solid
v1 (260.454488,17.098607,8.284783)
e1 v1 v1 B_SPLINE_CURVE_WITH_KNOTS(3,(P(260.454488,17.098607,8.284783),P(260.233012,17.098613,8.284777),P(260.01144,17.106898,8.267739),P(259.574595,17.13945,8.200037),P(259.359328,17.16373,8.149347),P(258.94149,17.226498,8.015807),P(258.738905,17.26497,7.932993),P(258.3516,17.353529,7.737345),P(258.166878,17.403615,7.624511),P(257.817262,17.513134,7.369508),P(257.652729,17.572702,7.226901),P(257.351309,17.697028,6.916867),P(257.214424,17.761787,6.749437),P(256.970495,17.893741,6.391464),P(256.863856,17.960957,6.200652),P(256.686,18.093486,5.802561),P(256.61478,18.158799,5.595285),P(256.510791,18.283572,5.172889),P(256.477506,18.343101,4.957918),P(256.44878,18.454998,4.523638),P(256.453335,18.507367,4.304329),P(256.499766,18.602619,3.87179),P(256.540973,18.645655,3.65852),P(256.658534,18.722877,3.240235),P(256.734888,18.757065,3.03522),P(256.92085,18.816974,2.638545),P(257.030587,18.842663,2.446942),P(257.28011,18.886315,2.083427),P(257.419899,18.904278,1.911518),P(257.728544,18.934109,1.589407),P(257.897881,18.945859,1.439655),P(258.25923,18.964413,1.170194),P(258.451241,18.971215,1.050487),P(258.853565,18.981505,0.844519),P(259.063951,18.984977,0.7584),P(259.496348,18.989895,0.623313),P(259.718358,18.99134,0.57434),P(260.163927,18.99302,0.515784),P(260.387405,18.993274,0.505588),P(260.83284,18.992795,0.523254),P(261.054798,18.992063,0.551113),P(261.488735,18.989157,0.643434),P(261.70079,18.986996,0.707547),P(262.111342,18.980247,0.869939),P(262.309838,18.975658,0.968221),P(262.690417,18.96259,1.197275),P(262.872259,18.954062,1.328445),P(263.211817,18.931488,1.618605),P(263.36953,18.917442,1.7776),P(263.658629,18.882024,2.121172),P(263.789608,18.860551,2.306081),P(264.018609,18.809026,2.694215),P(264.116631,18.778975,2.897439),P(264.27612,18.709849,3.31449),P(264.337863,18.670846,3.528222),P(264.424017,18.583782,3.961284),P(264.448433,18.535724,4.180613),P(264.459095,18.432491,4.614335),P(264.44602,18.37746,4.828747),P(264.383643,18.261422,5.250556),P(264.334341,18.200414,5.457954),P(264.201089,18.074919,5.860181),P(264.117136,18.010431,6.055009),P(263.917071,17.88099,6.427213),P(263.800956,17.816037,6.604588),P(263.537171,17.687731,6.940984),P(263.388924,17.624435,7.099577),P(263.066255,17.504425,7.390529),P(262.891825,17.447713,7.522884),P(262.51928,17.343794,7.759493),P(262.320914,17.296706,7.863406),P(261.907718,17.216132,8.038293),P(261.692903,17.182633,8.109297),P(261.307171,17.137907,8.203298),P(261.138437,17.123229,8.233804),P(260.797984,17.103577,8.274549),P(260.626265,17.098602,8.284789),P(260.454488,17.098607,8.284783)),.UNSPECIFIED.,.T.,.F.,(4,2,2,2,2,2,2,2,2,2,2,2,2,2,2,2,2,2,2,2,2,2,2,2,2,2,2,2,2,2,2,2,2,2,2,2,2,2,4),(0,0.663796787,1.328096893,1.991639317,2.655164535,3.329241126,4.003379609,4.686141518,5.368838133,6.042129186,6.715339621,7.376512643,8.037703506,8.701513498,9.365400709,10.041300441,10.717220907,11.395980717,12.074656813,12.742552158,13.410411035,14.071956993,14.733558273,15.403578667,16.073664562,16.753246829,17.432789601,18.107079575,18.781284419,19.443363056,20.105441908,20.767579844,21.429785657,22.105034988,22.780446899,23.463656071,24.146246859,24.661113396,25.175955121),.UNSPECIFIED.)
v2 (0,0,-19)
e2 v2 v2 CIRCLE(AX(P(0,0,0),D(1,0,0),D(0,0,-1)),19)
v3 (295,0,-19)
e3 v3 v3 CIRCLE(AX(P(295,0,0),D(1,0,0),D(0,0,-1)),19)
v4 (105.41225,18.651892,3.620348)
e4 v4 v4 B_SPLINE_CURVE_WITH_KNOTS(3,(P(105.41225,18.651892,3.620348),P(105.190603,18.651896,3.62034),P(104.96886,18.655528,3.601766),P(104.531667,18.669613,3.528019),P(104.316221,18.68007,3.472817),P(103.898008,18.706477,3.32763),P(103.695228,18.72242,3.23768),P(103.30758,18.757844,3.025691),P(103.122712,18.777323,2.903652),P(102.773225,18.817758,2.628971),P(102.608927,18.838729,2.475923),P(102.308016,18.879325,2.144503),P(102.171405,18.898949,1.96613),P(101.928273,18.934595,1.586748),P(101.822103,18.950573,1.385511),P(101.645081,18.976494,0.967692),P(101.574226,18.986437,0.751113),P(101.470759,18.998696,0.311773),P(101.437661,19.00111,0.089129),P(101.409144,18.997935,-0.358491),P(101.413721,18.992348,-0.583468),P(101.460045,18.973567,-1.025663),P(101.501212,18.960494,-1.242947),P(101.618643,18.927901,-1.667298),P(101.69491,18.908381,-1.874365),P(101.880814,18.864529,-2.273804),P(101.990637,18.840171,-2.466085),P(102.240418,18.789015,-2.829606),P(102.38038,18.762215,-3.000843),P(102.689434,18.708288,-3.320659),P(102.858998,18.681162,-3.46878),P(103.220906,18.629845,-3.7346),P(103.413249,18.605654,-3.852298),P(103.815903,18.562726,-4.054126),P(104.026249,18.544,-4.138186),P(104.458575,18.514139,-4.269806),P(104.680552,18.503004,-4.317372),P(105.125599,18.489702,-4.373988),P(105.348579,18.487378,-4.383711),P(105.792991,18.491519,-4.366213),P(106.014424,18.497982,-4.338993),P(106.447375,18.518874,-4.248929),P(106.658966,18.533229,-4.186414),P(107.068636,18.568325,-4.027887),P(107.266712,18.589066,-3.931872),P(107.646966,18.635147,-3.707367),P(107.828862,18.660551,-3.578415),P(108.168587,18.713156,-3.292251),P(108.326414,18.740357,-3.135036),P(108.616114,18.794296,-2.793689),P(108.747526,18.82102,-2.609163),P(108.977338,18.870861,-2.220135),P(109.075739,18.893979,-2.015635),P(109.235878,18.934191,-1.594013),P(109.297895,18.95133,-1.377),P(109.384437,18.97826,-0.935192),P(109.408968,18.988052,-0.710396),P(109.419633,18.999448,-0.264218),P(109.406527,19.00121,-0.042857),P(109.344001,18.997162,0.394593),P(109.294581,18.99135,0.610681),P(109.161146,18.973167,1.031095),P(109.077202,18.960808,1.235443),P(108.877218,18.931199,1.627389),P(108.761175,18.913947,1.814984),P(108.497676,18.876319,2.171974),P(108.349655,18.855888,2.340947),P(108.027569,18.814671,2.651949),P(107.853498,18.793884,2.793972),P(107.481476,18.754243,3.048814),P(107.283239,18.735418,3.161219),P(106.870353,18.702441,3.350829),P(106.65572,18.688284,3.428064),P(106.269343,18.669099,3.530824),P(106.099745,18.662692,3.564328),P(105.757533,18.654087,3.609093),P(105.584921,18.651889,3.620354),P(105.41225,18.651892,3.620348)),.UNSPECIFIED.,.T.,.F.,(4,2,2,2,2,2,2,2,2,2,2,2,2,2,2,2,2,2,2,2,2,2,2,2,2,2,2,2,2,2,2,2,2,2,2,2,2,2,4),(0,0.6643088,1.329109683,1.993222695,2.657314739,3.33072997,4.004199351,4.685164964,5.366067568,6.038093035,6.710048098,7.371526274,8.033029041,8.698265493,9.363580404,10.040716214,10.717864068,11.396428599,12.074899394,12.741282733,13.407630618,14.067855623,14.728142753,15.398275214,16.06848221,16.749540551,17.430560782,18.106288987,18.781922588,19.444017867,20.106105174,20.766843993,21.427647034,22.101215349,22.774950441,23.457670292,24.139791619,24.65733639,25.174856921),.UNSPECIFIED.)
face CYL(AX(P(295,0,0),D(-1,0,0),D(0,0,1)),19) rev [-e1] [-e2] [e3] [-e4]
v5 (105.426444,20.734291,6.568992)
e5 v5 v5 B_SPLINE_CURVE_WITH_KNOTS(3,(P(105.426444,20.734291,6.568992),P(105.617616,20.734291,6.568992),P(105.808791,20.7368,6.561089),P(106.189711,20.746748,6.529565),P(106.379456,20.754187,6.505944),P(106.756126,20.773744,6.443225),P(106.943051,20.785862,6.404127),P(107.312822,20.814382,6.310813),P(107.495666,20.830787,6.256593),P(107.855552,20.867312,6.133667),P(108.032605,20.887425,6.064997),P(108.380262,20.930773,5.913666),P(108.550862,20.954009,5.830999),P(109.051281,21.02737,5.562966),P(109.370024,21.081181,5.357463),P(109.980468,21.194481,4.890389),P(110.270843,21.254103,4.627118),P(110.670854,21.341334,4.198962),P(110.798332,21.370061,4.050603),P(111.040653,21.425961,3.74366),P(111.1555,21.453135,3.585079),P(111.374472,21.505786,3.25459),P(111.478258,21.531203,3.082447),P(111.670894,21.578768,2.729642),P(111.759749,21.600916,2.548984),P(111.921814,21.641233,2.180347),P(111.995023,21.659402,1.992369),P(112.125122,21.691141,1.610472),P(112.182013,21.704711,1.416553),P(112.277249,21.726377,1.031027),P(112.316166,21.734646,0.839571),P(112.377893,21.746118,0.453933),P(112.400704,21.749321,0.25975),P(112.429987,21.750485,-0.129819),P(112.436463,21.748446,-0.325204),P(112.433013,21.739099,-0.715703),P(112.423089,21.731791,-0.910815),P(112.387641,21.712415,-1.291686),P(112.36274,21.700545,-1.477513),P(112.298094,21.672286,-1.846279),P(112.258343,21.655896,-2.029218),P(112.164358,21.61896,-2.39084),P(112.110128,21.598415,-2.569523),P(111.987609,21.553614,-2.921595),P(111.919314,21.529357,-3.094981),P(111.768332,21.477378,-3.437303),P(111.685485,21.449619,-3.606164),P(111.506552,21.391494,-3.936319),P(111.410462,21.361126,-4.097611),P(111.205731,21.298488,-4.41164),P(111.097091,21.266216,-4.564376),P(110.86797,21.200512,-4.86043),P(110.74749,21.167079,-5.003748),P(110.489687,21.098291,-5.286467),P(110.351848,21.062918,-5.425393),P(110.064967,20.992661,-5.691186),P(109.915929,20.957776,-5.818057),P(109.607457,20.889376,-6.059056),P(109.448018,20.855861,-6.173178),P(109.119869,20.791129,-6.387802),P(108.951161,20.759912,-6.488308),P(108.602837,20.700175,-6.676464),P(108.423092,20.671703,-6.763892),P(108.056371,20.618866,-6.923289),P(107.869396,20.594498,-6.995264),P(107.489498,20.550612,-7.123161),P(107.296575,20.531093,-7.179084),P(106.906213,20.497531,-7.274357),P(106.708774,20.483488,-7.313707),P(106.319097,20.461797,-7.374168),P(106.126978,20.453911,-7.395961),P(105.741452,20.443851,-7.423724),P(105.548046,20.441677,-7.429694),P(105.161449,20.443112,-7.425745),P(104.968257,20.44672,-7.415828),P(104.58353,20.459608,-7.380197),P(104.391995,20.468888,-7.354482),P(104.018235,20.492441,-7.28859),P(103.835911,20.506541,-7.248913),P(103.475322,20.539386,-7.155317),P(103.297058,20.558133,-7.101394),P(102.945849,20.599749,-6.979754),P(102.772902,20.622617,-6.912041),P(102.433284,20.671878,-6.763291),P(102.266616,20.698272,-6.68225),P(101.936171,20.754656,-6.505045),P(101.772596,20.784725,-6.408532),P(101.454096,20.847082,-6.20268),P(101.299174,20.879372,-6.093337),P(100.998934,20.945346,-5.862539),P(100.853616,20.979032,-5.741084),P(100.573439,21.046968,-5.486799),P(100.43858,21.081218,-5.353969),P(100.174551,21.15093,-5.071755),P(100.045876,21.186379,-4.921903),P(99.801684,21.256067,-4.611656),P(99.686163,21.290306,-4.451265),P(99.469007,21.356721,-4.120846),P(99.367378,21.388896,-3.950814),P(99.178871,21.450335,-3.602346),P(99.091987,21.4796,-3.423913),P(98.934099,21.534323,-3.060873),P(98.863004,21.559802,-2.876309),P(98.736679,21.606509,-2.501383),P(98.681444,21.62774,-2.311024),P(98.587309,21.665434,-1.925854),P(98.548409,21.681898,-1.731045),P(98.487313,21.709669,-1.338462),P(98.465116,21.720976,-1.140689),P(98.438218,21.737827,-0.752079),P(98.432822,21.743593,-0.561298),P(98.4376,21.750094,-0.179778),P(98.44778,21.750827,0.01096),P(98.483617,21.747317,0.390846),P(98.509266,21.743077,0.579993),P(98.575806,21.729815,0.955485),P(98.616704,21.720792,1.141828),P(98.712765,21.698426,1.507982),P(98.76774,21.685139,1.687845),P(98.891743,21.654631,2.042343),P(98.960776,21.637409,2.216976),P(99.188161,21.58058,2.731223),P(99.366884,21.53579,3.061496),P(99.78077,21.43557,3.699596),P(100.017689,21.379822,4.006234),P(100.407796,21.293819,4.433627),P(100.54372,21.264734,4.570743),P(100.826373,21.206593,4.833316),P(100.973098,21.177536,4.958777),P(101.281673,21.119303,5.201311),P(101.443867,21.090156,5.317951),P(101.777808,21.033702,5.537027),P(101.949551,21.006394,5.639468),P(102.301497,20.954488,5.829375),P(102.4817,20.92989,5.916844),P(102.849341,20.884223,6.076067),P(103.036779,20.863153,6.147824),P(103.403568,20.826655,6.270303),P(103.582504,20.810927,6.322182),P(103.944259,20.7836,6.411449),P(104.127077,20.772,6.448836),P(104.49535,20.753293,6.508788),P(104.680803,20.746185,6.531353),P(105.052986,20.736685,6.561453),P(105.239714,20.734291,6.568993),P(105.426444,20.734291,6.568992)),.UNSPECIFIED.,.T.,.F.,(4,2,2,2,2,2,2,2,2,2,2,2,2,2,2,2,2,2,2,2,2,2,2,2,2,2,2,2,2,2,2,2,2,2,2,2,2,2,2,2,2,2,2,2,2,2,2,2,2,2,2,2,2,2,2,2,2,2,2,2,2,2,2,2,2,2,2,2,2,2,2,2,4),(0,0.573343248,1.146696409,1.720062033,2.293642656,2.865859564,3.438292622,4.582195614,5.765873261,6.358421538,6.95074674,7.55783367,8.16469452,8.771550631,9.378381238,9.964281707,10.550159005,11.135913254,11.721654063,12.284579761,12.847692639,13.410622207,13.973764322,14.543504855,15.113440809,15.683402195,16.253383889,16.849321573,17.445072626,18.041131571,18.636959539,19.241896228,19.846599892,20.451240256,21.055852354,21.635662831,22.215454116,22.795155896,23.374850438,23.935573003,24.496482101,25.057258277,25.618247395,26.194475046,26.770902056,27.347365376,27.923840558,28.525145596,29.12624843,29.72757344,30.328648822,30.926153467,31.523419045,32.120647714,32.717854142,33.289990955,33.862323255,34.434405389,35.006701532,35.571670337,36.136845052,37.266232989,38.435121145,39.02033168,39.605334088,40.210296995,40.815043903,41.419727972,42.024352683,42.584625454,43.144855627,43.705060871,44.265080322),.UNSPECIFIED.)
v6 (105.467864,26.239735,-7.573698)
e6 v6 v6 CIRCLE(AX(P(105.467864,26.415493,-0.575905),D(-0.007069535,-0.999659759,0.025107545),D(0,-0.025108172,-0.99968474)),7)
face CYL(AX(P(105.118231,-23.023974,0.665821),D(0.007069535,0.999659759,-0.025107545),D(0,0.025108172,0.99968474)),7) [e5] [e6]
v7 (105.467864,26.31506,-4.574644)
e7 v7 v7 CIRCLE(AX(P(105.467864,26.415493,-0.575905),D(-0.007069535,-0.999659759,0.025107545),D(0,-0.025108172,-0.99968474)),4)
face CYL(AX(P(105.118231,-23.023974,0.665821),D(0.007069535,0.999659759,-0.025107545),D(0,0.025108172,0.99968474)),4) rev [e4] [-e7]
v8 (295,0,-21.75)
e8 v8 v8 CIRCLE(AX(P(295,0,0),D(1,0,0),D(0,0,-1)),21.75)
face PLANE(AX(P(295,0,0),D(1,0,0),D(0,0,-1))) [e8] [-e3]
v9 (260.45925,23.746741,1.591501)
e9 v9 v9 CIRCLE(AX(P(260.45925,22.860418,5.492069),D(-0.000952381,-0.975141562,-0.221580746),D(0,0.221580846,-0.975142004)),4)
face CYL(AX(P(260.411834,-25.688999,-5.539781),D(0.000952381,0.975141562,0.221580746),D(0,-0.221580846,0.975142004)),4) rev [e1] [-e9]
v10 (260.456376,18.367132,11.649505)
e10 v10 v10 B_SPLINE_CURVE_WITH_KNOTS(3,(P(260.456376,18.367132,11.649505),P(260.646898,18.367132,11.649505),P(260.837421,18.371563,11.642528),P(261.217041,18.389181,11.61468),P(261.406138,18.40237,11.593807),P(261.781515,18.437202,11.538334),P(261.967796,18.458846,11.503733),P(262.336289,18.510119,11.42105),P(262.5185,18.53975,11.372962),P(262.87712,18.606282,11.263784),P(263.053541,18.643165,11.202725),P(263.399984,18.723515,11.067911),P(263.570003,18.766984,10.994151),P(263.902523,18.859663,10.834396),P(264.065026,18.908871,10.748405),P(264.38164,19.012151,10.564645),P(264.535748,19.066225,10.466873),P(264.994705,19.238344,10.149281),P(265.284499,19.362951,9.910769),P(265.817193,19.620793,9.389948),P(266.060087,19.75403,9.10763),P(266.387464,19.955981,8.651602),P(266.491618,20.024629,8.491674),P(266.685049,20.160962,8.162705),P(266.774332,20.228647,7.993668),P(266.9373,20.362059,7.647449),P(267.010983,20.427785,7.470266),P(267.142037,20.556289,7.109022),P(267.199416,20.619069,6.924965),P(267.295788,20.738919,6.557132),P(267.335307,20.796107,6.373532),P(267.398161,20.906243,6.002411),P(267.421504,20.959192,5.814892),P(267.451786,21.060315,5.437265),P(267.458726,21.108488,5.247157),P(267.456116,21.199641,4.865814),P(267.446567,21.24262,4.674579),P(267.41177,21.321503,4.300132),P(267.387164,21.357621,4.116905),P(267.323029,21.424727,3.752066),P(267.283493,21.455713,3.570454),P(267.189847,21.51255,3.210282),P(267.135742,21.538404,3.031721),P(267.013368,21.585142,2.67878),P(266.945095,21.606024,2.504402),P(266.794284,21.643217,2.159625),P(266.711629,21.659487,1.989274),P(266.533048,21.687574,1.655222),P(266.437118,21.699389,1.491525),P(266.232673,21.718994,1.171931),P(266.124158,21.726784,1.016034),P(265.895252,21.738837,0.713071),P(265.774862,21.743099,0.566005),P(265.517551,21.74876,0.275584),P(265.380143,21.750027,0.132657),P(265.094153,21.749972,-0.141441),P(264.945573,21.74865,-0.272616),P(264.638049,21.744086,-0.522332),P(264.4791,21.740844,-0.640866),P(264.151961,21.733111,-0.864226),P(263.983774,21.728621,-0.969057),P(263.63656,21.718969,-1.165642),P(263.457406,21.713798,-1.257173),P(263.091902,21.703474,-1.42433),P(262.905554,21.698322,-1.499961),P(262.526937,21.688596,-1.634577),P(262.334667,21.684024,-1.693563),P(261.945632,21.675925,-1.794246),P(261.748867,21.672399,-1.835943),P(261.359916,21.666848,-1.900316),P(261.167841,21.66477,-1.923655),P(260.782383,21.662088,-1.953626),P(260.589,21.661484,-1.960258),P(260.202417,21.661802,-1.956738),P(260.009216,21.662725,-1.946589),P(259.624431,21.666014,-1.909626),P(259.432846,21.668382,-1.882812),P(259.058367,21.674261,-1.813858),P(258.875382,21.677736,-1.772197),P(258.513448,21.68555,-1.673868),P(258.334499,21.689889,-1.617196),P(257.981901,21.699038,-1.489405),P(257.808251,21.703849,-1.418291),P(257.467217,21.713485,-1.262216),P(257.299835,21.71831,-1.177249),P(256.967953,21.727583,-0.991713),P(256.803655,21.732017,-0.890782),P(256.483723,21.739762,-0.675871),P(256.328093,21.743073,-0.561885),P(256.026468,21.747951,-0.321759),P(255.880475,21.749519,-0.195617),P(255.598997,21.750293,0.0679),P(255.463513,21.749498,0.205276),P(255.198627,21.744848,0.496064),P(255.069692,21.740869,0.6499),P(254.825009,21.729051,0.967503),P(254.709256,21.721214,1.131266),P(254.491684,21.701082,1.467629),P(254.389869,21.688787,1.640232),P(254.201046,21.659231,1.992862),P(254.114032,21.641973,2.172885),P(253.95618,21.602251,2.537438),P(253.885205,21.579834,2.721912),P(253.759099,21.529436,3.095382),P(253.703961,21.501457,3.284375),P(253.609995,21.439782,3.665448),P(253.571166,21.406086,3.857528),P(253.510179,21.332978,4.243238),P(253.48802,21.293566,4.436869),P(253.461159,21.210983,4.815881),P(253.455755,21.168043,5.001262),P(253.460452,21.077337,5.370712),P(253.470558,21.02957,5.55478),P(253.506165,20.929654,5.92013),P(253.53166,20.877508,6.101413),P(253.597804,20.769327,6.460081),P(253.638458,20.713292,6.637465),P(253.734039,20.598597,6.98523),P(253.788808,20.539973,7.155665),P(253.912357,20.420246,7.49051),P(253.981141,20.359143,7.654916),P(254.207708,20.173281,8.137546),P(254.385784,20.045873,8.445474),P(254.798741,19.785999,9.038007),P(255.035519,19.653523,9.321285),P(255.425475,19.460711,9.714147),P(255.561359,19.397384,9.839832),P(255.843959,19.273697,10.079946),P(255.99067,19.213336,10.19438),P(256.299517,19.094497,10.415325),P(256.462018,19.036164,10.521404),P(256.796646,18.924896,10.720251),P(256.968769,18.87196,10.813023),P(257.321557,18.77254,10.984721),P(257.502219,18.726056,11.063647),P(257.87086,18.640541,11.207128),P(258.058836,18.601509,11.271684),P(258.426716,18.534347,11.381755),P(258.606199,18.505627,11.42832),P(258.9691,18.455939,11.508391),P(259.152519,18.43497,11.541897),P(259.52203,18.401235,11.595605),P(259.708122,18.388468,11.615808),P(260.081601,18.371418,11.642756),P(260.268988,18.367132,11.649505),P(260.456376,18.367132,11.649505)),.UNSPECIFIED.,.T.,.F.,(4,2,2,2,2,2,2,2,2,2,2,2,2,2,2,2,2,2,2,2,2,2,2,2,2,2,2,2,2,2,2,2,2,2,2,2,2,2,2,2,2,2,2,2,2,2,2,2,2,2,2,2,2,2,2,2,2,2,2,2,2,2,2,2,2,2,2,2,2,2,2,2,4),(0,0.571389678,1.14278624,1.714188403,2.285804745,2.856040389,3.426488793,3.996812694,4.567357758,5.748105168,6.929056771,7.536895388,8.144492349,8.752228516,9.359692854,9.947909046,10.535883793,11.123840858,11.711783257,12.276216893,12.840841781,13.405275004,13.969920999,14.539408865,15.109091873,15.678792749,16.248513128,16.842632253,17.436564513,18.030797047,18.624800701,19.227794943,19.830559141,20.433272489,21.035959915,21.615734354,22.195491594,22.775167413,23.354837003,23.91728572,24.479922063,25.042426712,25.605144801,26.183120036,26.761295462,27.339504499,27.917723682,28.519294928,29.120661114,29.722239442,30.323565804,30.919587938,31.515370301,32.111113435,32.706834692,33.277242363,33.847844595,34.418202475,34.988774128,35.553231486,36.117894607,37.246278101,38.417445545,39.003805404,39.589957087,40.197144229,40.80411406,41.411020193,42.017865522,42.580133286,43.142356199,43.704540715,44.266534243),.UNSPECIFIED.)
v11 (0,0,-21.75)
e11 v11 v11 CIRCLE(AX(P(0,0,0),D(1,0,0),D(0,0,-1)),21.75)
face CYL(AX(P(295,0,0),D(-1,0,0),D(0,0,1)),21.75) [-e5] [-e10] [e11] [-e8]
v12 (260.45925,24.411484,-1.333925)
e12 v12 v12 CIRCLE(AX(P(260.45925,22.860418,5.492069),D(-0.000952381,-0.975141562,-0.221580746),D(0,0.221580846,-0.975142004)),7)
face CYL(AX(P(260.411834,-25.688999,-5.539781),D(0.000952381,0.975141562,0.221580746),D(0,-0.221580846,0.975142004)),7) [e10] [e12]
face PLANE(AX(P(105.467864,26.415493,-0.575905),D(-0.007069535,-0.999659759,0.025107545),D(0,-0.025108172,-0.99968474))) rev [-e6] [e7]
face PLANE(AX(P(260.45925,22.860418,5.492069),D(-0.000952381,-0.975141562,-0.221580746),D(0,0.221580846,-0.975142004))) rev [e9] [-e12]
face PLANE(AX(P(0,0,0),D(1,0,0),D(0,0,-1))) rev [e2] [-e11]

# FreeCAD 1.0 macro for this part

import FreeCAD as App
import Part
import Sketcher
from FreeCAD import Vector

doc = App.newDocument("Part")
body = doc.addObject("PartDesign::Body", "Body")

# Sketch on YZ plane
sketch1 = body.newObject("Sketcher::SketchObject", "Sketch")
sketch1.AttachmentSupport = (doc.getObject("YZ_Plane"), [""])
sketch1.MapMode = "FlatFace"
sketch1.addGeometry([
    Part.Circle(Vector(0, 0, 0), Vector(0, 0, 1), 22),
    Part.Circle(Vector(0, 0, 0), Vector(0, 0, 1), 19),
], False)
sketch1.addConstraint([
    Sketcher.Constraint("Coincident", 0, 3, -1, 1),
    Sketcher.Constraint("Coincident", 1, 3, -1, 1),
    Sketcher.Constraint("Diameter", 1, 38.0),
    Sketcher.Constraint("Diameter", 0, 43.5),
])
pad1 = body.newObject("PartDesign::Pad", "Pad")
pad1.Profile = sketch1
pad1.Length = 295

# Sketch on an angled plane
sketch2 = body.newObject("Sketcher::SketchObject", "Sketch001")
sketch2.Placement = App.Placement(Vector(0.022626, 23.166571, 5.264124), App.Rotation(Vector(0.999999546, -0.000927561, -0.00021607), Vector(0.000005169, -0.221580851, 0.975142003), Vector(-0.000952381, -0.975141562, -0.221580746), "ZXY"))
sketch2.addGeometry([
    Part.Circle(Vector(260.4, 0.3, 0), Vector(0, 0, 1), 7),
    Part.Circle(Vector(260.4, 0.3, 0), Vector(0, 0, 1), 4),
], False)
sketch2.addConstraint([
    Sketcher.Constraint("Coincident", 1, 3, 0, 3),
    Sketcher.Constraint("Diameter", 0, 14.0),
    Sketcher.Constraint("Diameter", 1, 8.0),
    Sketcher.Constraint("DistanceX", -1, 1, 0, 3, 260.43674),
    Sketcher.Constraint("DistanceY", -1, 1, 0, 3, 0.291463),
])
pad2 = body.newObject("PartDesign::Pad", "Pad001")
pad2.Profile = sketch2
pad2.Type = "UpToFirst"

# Sketch on an angled plane
sketch3 = body.newObject("Sketcher::SketchObject", "Sketch002")
sketch3.Placement = App.Placement(Vector(0.192055, 27.15733, -0.682086), App.Rotation(Vector(0.999975011, -0.007067306, 0.000177503), Vector(0, 0.025108172, 0.999684741), Vector(-0.007069535, -0.999659759, 0.025107545), "ZXY"))
sketch3.addGeometry([
    Part.Circle(Vector(105.3, 0.1, 0), Vector(0, 0, 1), 7),
    Part.Circle(Vector(105.3, 0.1, 0), Vector(0, 0, 1), 4),
], False)
sketch3.addConstraint([
    Sketcher.Constraint("Coincident", 1, 3, 0, 3),
    Sketcher.Constraint("Diameter", 0, 14.0),
    Sketcher.Constraint("Diameter", 1, 8.0),
    Sketcher.Constraint("DistanceX", -1, 1, 0, 3, 105.27844),
    Sketcher.Constraint("DistanceY", -1, 1, 0, 3, 0.087522),
])
pad3 = body.newObject("PartDesign::Pad", "Pad002")
pad3.Profile = sketch3
pad3.Type = "UpToFirst"

# Sketch on an angled plane
sketch4 = body.newObject("Sketcher::SketchObject", "Sketch003")
sketch4.Placement = App.Placement(Vector(0.022626, 23.166571, 5.264124), App.Rotation(Vector(0.999999546, -0.000927561, -0.00021607), Vector(-0.000005169, 0.221580851, -0.975142003), Vector(0.000952381, 0.975141562, 0.221580746), "ZXY"))
sketch4.addGeometry(Part.Circle(Vector(260.4, -0.3, 0), Vector(0, 0, 1), 4), False)
sketch4.addConstraint([
    Sketcher.Constraint("Diameter", 0, 8.0),
    Sketcher.Constraint("DistanceX", -1, 1, 0, 3, 260.43674),
    Sketcher.Constraint("DistanceY", 0, 3, -1, 1, 0.291463),
])
pocket1 = body.newObject("PartDesign::Pocket", "Pocket")
pocket1.Profile = sketch4
pocket1.Length = 10

# Sketch on an angled plane
sketch5 = body.newObject("Sketcher::SketchObject", "Sketch004")
sketch5.Placement = App.Placement(Vector(0.192055, 27.15733, -0.682086), App.Rotation(Vector(0.999975011, -0.007067306, 0.000177503), Vector(0, -0.025108172, -0.999684741), Vector(0.007069535, 0.999659759, -0.025107545), "ZXY"))
sketch5.addGeometry(Part.Circle(Vector(105.3, -0.1, 0), Vector(0, 0, 1), 4), False)
sketch5.addConstraint([
    Sketcher.Constraint("Diameter", 0, 8.0),
    Sketcher.Constraint("DistanceX", -1, 1, 0, 3, 105.27844),
    Sketcher.Constraint("DistanceY", 0, 3, -1, 1, 0.087522),
])
pocket2 = body.newObject("PartDesign::Pocket", "Pocket001")
pocket2.Profile = sketch5
pocket2.Length = 20

doc.recompute()
